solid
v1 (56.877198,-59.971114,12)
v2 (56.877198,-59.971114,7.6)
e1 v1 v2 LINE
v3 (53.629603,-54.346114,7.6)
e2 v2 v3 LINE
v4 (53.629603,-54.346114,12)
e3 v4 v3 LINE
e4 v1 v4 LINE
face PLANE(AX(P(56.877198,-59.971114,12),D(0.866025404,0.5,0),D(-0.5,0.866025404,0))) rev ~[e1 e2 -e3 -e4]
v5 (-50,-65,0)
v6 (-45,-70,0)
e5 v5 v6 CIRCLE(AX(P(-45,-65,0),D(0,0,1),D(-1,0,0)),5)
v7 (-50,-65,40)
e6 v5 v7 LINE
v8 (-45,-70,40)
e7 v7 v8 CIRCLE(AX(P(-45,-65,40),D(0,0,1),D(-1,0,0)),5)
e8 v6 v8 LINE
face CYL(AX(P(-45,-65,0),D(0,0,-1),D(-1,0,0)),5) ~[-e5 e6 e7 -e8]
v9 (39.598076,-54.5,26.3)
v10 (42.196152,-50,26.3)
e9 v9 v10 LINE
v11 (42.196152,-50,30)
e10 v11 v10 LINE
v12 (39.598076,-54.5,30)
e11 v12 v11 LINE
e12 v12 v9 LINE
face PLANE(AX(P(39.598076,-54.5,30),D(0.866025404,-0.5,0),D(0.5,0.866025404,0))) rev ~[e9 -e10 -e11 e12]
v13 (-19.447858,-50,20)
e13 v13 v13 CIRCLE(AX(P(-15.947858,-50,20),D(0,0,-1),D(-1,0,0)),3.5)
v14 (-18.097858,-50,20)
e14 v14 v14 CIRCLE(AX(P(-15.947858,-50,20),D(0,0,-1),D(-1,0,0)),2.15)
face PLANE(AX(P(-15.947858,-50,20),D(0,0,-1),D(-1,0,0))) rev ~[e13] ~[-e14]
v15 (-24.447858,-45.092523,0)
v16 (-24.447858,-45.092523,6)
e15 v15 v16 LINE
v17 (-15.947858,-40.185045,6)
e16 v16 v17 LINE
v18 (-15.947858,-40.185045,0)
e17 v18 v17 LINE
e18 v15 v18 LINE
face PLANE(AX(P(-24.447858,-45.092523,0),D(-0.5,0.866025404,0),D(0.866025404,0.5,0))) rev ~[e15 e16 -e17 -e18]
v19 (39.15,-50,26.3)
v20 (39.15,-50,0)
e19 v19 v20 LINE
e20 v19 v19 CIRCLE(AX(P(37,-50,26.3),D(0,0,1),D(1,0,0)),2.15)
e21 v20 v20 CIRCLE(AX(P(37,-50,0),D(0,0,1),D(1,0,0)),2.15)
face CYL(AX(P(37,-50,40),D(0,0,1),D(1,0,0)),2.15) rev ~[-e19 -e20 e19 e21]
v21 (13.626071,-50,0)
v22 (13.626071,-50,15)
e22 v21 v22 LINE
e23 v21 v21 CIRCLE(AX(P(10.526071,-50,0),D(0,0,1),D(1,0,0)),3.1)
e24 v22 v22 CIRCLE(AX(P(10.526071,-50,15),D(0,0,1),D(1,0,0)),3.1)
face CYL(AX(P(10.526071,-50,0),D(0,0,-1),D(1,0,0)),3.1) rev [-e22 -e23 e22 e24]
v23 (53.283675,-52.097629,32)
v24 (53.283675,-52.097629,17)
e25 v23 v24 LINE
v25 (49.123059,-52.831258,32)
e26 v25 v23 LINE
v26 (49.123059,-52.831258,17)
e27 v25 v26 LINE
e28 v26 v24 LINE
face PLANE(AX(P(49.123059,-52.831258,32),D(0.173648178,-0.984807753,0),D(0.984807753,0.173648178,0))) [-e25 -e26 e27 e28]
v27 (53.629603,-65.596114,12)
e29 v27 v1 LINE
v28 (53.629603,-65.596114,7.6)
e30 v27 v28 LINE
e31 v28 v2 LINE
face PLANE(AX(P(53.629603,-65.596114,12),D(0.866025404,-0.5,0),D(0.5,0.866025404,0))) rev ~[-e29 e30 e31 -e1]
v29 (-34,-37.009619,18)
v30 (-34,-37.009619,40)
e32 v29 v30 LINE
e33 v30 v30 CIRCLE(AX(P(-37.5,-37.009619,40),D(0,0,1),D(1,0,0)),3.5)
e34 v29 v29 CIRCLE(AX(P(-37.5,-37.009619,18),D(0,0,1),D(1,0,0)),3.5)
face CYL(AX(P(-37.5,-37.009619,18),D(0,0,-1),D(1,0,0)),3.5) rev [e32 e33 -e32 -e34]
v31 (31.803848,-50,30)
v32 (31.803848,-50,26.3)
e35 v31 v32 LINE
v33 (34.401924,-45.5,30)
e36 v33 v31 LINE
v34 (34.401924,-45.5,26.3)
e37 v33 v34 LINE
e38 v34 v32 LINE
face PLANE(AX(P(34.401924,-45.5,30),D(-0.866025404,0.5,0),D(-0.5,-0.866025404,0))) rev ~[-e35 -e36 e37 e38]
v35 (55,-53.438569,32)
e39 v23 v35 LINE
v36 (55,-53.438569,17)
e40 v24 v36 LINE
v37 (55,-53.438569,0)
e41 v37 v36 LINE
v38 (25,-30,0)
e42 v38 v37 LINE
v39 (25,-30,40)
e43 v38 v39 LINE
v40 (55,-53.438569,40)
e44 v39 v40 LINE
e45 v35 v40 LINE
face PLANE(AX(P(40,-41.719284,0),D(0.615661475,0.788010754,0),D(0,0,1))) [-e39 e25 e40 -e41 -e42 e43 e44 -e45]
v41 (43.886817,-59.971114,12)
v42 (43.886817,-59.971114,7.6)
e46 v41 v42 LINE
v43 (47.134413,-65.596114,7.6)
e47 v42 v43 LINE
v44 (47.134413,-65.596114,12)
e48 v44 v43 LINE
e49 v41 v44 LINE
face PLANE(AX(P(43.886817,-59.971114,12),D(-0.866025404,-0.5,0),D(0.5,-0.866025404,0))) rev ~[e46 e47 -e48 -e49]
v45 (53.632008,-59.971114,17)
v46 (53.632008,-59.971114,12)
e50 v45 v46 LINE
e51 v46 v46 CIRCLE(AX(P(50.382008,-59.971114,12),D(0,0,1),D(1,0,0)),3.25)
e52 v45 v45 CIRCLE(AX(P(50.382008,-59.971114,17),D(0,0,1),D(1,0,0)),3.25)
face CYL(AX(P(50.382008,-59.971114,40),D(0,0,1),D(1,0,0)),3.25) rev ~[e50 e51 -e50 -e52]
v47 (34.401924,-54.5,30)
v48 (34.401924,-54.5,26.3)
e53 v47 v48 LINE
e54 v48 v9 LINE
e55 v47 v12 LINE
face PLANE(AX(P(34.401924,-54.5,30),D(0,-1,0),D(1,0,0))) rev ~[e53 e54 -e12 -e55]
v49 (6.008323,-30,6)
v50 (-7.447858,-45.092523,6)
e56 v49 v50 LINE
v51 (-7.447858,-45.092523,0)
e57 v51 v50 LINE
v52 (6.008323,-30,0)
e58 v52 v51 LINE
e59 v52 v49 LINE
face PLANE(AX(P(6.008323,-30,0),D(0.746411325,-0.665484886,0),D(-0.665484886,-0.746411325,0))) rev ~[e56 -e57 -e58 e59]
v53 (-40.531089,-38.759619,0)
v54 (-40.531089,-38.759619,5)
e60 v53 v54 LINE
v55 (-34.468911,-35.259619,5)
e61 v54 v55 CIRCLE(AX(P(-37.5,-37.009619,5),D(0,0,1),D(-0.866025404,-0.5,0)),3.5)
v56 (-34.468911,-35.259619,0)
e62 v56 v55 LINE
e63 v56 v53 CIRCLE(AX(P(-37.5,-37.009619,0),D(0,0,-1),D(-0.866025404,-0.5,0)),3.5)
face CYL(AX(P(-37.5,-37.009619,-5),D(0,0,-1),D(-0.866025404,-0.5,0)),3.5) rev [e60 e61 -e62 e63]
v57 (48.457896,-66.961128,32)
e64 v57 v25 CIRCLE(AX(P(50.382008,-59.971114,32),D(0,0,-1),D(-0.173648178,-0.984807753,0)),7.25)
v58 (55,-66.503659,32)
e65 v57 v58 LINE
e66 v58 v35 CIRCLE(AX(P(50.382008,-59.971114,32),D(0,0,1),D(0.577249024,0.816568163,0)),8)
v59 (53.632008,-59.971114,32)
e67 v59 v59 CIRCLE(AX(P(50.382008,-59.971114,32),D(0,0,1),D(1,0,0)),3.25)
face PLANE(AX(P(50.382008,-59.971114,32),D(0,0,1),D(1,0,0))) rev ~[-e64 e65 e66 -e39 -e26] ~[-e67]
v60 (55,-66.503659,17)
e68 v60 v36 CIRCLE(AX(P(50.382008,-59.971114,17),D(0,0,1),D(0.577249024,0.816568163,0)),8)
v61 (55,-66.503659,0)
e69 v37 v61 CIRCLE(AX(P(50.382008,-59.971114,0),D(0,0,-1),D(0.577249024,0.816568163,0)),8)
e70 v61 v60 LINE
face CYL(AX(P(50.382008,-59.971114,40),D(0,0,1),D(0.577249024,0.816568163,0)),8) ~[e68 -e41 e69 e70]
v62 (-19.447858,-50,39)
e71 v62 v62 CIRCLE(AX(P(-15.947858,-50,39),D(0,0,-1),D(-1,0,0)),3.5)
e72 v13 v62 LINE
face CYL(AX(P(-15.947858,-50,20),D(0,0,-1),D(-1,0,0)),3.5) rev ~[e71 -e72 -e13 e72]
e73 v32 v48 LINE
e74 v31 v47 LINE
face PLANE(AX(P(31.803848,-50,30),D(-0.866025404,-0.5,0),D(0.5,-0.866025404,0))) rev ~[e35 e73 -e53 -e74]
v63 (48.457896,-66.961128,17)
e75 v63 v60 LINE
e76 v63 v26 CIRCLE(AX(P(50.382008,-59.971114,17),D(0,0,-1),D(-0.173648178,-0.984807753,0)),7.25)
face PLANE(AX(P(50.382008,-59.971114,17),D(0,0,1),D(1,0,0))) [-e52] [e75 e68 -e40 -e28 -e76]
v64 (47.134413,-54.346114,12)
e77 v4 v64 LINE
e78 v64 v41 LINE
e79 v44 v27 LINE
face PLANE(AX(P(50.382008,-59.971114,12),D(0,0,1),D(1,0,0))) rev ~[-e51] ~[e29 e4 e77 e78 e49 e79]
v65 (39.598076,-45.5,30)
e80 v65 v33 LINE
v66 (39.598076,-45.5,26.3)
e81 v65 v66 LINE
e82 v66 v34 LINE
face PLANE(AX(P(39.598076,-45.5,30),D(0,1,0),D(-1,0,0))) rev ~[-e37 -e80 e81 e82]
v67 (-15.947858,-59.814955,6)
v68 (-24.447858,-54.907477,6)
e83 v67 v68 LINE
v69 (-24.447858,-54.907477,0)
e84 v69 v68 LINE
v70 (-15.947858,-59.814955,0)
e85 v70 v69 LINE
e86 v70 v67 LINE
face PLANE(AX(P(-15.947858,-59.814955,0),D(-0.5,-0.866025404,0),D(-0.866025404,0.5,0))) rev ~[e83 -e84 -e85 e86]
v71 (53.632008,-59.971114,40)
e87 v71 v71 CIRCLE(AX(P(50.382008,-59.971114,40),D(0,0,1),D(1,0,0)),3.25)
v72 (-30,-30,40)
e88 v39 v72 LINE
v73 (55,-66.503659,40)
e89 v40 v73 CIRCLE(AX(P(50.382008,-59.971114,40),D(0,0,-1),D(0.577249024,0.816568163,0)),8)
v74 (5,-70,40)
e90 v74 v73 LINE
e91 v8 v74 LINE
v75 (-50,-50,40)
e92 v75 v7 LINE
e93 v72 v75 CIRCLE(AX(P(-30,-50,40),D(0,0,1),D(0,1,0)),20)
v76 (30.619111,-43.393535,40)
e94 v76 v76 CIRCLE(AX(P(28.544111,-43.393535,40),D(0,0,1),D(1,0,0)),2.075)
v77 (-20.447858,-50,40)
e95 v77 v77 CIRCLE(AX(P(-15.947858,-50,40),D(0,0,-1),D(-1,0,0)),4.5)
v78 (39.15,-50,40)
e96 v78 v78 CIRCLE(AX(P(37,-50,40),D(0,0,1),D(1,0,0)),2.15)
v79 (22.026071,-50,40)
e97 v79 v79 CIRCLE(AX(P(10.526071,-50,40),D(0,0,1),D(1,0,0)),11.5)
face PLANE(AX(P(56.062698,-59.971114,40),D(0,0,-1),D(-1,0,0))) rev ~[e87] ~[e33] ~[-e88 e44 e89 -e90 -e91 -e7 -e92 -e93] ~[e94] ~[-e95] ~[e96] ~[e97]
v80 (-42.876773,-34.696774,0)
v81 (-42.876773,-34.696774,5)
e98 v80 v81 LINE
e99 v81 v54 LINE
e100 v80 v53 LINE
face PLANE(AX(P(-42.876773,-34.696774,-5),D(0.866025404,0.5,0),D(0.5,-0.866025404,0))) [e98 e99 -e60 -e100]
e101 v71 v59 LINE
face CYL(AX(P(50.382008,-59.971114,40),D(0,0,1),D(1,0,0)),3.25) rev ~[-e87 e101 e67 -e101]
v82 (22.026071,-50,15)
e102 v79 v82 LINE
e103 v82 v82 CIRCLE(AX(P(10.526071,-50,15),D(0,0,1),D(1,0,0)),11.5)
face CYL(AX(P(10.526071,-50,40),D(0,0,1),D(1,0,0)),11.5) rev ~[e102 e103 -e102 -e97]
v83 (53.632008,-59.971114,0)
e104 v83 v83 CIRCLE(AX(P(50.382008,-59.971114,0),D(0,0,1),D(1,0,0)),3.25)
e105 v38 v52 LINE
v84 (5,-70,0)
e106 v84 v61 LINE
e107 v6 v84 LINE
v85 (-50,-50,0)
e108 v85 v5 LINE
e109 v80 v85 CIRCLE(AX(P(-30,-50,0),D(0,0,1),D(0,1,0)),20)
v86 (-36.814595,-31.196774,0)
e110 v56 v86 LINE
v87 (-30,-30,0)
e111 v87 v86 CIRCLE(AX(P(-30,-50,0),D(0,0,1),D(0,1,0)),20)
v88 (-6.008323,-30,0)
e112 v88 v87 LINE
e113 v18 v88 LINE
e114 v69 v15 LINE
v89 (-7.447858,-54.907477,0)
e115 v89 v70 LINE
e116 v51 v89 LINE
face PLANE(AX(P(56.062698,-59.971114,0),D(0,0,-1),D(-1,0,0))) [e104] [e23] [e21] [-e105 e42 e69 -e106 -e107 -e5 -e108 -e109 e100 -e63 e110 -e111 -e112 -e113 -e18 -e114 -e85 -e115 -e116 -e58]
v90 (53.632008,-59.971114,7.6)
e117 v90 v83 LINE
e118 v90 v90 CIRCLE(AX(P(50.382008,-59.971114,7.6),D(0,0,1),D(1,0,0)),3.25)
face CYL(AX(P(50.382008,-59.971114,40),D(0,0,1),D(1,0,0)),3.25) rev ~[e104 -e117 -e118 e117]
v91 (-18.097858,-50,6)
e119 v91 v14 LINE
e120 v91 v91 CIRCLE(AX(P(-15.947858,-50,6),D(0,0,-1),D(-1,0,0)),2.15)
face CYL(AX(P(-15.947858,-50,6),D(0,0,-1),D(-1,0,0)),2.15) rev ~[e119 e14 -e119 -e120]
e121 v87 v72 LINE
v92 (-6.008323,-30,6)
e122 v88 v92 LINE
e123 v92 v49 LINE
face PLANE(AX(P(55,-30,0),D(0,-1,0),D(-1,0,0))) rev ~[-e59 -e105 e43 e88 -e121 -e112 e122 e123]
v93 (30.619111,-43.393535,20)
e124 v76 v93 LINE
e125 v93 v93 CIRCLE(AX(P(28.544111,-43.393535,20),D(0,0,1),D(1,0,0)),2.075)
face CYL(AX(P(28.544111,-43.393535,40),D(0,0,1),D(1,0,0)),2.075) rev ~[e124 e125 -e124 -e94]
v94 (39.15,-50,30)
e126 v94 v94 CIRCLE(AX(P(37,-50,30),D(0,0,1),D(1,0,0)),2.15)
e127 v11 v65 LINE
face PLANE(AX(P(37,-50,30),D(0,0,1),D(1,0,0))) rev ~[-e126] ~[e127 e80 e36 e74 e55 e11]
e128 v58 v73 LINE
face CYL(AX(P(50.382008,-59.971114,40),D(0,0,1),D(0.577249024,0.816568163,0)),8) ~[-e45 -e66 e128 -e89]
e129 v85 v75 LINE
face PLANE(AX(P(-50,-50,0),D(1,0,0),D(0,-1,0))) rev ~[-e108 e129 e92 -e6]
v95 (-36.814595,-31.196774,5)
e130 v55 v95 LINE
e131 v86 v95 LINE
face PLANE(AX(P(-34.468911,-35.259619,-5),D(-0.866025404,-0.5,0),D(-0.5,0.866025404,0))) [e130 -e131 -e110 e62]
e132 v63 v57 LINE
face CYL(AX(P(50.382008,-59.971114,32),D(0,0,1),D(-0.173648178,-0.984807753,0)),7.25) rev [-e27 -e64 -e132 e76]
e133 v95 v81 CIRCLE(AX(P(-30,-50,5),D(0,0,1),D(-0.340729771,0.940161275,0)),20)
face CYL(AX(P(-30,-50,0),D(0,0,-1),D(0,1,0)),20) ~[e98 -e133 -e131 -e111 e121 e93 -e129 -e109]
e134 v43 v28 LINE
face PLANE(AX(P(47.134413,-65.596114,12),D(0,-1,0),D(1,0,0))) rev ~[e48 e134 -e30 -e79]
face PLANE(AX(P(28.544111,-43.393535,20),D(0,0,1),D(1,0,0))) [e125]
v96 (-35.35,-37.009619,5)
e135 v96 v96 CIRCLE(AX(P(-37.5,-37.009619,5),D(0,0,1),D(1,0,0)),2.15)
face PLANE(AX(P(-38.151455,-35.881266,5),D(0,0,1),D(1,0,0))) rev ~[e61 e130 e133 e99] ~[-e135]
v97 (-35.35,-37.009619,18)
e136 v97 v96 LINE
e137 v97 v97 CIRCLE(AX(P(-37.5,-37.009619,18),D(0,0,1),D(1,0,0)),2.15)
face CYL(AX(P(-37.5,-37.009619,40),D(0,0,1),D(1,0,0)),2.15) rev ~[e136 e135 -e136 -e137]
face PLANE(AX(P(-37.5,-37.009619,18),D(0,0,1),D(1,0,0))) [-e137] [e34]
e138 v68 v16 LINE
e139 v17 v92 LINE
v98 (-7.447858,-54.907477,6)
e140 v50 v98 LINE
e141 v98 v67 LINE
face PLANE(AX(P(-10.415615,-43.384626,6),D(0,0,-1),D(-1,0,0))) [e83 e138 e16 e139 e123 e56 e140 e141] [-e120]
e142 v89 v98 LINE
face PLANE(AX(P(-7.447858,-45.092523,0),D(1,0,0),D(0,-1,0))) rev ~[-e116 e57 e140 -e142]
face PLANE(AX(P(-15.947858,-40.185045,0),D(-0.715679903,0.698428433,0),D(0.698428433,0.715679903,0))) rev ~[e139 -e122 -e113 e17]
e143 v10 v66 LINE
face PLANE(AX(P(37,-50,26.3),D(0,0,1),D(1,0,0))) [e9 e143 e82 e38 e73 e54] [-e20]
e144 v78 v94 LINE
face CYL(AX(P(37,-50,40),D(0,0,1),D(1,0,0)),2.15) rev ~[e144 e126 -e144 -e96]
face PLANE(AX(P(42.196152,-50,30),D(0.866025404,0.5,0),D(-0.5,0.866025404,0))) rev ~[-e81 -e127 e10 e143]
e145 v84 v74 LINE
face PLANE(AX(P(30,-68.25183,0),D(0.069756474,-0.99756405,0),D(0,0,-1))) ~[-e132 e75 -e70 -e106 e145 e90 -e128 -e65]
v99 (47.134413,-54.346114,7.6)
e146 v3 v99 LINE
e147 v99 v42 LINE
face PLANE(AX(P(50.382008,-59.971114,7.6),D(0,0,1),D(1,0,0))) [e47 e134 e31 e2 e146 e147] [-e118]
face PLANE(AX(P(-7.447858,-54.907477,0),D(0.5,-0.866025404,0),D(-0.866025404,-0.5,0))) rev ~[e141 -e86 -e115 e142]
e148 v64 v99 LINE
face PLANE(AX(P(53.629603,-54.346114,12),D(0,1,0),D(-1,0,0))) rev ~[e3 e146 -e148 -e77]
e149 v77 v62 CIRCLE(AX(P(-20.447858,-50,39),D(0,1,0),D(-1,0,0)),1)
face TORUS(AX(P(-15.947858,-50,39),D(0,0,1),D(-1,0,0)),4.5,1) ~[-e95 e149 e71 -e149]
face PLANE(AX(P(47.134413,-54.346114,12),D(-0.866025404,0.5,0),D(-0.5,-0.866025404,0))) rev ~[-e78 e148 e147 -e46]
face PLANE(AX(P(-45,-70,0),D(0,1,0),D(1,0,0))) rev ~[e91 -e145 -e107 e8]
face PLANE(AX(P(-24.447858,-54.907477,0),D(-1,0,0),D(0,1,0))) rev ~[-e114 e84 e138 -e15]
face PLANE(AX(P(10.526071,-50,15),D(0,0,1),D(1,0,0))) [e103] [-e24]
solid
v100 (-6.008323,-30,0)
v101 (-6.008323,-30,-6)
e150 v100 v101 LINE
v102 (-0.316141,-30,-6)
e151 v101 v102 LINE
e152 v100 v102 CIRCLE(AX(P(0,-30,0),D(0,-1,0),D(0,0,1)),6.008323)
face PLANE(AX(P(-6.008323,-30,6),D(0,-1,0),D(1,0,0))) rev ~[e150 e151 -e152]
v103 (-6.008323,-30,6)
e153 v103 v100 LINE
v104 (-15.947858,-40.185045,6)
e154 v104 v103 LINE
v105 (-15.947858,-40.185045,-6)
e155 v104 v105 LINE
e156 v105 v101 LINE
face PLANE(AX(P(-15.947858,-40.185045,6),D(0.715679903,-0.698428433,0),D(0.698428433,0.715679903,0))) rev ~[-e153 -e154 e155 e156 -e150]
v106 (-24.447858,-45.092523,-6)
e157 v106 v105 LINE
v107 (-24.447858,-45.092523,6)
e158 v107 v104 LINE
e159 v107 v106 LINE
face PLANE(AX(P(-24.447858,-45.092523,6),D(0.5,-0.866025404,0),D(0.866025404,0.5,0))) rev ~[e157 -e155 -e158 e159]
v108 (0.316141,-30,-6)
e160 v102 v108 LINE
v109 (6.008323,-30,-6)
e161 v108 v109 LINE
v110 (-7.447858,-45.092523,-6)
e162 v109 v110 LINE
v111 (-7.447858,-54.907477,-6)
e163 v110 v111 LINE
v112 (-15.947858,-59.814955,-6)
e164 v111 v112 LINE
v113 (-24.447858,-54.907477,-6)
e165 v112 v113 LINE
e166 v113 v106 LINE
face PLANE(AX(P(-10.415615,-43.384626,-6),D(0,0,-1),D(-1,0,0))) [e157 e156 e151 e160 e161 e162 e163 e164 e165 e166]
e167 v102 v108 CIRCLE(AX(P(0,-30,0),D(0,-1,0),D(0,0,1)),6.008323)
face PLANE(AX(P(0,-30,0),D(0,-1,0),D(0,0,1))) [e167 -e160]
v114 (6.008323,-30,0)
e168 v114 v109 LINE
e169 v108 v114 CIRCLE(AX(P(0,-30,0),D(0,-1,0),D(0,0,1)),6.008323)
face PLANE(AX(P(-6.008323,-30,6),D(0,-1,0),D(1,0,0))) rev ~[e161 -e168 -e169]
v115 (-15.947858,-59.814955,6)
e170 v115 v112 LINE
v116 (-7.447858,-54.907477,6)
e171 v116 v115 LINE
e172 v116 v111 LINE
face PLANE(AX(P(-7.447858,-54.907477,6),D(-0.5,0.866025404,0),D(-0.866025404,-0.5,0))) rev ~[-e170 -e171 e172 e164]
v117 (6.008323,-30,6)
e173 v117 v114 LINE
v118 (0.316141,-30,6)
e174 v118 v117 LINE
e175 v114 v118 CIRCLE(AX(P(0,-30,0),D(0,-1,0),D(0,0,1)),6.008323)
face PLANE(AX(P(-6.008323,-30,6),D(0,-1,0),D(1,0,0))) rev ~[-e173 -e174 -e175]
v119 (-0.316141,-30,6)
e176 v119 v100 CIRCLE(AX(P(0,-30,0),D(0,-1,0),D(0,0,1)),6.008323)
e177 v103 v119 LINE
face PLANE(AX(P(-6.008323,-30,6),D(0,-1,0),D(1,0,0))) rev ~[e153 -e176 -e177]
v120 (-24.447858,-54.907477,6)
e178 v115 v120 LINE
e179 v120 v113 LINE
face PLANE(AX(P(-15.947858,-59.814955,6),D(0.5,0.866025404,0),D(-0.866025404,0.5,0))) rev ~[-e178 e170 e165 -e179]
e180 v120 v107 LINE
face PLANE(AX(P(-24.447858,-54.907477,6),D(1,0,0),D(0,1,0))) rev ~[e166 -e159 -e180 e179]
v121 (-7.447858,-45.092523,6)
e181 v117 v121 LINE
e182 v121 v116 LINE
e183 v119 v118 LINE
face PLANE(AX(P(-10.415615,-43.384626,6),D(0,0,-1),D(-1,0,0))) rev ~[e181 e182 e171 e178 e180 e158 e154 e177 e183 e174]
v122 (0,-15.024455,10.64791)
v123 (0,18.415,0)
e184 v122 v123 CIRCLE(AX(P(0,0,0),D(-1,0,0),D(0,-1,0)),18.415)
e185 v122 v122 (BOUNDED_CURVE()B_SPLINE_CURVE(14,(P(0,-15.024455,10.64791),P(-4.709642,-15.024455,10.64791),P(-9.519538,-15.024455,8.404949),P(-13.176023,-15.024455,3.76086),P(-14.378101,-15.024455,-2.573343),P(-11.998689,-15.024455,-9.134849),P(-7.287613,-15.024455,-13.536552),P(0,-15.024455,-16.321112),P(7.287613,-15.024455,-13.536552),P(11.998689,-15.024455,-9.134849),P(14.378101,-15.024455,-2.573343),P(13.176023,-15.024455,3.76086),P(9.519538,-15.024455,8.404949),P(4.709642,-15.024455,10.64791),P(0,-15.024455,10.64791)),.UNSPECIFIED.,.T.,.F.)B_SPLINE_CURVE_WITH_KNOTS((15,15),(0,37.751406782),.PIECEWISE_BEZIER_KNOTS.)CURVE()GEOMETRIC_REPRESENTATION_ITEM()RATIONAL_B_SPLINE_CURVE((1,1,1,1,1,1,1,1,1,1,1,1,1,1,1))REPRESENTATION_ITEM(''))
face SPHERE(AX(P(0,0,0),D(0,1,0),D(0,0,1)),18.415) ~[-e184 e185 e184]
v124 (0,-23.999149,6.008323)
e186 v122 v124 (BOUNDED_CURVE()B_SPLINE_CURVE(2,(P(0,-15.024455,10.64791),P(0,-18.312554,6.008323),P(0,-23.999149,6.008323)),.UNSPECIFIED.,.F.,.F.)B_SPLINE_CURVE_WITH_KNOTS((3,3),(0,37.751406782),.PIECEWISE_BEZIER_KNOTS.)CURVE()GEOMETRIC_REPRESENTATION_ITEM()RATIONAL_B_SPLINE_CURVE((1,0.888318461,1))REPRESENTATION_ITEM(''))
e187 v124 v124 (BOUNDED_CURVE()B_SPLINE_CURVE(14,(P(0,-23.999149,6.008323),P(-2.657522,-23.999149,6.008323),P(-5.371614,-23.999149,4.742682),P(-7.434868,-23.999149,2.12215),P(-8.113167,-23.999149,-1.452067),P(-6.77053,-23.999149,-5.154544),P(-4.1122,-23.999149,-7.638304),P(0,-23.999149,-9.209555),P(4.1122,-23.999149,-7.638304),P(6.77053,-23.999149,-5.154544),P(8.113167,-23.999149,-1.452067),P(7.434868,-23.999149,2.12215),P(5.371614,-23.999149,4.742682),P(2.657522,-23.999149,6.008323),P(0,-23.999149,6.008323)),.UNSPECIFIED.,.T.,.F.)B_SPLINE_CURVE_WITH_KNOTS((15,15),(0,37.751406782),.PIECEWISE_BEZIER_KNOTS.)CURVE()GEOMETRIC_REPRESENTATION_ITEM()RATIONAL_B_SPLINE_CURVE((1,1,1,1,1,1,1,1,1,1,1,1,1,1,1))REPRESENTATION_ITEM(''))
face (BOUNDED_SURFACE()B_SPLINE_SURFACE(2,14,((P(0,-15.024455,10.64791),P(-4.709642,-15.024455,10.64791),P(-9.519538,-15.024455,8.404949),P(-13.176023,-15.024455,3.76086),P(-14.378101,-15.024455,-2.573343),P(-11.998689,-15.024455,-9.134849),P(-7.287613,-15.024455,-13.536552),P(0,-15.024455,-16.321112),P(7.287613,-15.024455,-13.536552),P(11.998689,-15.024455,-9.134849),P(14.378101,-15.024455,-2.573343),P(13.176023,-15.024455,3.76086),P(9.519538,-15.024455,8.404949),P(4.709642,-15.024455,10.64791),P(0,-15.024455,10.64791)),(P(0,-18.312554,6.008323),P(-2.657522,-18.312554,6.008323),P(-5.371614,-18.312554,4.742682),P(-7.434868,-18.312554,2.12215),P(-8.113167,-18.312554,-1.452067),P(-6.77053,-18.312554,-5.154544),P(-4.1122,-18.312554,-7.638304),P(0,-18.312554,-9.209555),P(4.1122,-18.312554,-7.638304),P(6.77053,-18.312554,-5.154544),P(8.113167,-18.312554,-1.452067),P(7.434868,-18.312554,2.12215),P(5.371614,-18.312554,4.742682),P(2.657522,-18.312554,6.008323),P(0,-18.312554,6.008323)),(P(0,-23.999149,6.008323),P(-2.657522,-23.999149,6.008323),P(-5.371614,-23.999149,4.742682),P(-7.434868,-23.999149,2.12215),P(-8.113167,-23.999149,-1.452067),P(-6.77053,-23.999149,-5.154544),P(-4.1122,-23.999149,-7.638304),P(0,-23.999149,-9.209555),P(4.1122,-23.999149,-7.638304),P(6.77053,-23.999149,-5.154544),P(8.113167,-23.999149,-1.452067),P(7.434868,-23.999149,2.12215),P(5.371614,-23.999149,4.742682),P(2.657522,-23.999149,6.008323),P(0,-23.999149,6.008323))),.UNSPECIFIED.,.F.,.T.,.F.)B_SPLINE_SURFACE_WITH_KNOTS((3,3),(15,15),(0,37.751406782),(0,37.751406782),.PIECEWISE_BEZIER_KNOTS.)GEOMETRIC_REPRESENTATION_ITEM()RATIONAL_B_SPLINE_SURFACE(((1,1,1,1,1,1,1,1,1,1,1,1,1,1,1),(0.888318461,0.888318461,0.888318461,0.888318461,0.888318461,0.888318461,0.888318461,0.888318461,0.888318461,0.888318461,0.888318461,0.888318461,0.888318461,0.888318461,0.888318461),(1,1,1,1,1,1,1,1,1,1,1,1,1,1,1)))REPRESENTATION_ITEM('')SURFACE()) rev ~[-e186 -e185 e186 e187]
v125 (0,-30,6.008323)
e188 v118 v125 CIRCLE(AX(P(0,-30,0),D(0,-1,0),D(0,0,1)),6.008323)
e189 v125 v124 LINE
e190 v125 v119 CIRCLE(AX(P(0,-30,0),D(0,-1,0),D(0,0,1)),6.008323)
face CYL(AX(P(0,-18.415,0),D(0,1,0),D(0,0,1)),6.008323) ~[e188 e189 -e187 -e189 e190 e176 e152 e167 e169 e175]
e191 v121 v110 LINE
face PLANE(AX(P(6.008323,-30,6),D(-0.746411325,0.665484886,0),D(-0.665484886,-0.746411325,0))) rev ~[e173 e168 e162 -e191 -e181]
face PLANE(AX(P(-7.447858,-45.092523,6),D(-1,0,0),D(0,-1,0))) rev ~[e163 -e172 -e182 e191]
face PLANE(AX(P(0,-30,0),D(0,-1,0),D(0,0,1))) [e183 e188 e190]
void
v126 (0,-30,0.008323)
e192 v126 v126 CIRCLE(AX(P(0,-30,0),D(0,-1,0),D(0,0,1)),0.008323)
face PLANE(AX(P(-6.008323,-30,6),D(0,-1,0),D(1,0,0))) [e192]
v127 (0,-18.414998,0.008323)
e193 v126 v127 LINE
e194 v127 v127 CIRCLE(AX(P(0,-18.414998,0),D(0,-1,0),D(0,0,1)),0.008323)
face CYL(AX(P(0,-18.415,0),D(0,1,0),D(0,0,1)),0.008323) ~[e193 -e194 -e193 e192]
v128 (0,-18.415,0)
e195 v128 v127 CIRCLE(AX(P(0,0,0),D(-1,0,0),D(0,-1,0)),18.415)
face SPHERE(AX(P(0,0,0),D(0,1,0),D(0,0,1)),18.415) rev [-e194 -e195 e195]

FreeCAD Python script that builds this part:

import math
import FreeCAD as App
import Part
import Sketcher
Q = App.Units.Quantity


def edges_at(feature, points):
    """Names of the edges that pass closest to the given points."""
    edges = feature.Shape.Edges
    near = lambda p: min(range(len(edges)), key=lambda i: edges[i].distToShape(Part.Vertex(*p))[0])
    return sorted({f"Edge{near(p) + 1}" for p in points})


def add_polygon(sketch, points):
    """Adds a closed chain of lines whose ends are joined by coincident constraints."""
    first, n = sketch.GeometryCount, len(points)
    for a, b in zip(points, points[1:] + points[:1]):
        sketch.addGeometry(Part.LineSegment(App.Vector(*a, 0), App.Vector(*b, 0)), False)
    for i in range(n):
        sketch.addConstraint(Sketcher.Constraint("Coincident", first + i, 2, first + (i + 1) % n, 1))

doc = App.newDocument("Part")
params = doc.addObject("Spreadsheet::Sheet", "Params")
for row, (alias, value) in enumerate([
    ("sketch1_radius", "20 mm"),
    ("sketch1_radius2", "5 mm"),
    ("sketch1_width", "85 mm"),
    ("sketch1_height", "15 mm"),
    ("pad1_length", "40 mm"),
    ("pocket1_length", "6 mm"),
    ("sketch3_diameter", "4.3 mm"),
    ("pocket2_length", "14 mm"),
    ("sketch4_diameter", "7 mm"),
    ("pocket3_length", "24 mm"),
    ("fillet_radius", "1 mm"),
    ("sketch5_diameter", "4.3 mm"),
    ("pocket4_length", "57 mm"),
    ("pocket5_length", "3.7 mm"),
    ("chamfer_size", "30 mm"),
    ("chamfer_size2", "23.438569 mm"),
    ("chamfer2_size", "50 mm"),
    ("chamfer2_size2", "3.496341 mm"),
    ("sketch7_radius", "8 mm"),
    ("sketch7_diameter", "6.5 mm"),
    ("pad2_length", "40 mm"),
    ("sketch8_diameter", "6.5 mm"),
    ("pocket6_length", "40 mm"),
    ("sketch9_radius", "7.25 mm"),
    ("pocket7_length", "15 mm"),
    ("pocket8_length", "4.4 mm"),
    ("sketch11_radius", "20 mm"),
    ("sketch11_radius2", "3.5 mm"),
    ("pocket9_length", "5 mm"),
    ("pocket9_length2", "5 mm"),
    ("sketch12_diameter", "7 mm"),
    ("pocket10_length", "22 mm"),
    ("sketch13_diameter", "4.3 mm"),
    ("pocket11_length", "42 mm"),
    ("sketch14_diameter", "6.2 mm"),
    ("pocket12_length", "15 mm"),
    ("sketch15_diameter", "23 mm"),
    ("pocket13_length", "25 mm"),
    ("sketch16_diameter", "4.15 mm"),
    ("pocket14_length", "20 mm"),
    ("sketch17_width", "6 mm"),
    ("revolution_angle", "360 deg"),
    ("fillet2_radius", "11 mm"),
    ("pad3_length", "6 mm"),
    ("pad3_length2", "6 mm"),
], start=1):
    params.set(f"A{row}", alias)
    params.set(f"B{row}", "=" + value)
    params.setAlias(f"B{row}", alias)

body = doc.addObject("PartDesign::Body", "Body")

# Sketch on XY plane
sketch1 = doc.addObject("Sketcher::SketchObject", "Sketch")
body.addObject(sketch1)
sketch1.AttachmentSupport = (doc.XY_Plane, [""])
sketch1.MapMode = "FlatFace"
sketch1.addGeometry(Part.LineSegment(App.Vector(55, -30, 0), App.Vector(-30, -30, 0)), False)
sketch1.addGeometry(Part.ArcOfCircle(Part.Circle(App.Vector(-30, -50, 0), App.Vector(0, 0, 1), 20), math.radians(90), math.radians(180)), False)
sketch1.addGeometry(Part.LineSegment(App.Vector(-50, -50, 0), App.Vector(-50, -65, 0)), False)
sketch1.addGeometry(Part.ArcOfCircle(Part.Circle(App.Vector(-45, -65, 0), App.Vector(0, 0, 1), 5), math.radians(180), math.radians(270)), False)
sketch1.addGeometry(Part.LineSegment(App.Vector(-45, -70, 0), App.Vector(55, -70, 0)), False)
sketch1.addGeometry(Part.LineSegment(App.Vector(55, -70, 0), App.Vector(55, -30, 0)), False)
sketch1.addConstraint(Sketcher.Constraint("Tangent", 0, 2, 1, 1))
sketch1.addConstraint(Sketcher.Constraint("Tangent", 1, 2, 2, 1))
sketch1.addConstraint(Sketcher.Constraint("Tangent", 2, 2, 3, 1))
sketch1.addConstraint(Sketcher.Constraint("Tangent", 3, 2, 4, 1))
sketch1.addConstraint(Sketcher.Constraint("Coincident", 4, 2, 5, 1))
sketch1.addConstraint(Sketcher.Constraint("Coincident", 5, 2, 0, 1))
sketch1.addConstraint(Sketcher.Constraint("Horizontal", 0))
sketch1.addConstraint(Sketcher.Constraint("Vertical", 2))
sketch1.addConstraint(Sketcher.Constraint("Horizontal", 4))
sketch1.addConstraint(Sketcher.Constraint("Vertical", 5))
sketch1.addConstraint(Sketcher.Constraint("Radius", 1, 20.0))
sketch1.addConstraint(Sketcher.Constraint("Radius", 3, 5.0))
sketch1.addConstraint(Sketcher.Constraint("DistanceX", 0, 2, 0, 1, 85.0))
sketch1.addConstraint(Sketcher.Constraint("DistanceY", 2, 2, 2, 1, 15.0))
sketch1.addConstraint(Sketcher.Constraint("DistanceX", 1, 3, -1, 1, 30.0))
sketch1.addConstraint(Sketcher.Constraint("DistanceY", 1, 3, -1, 1, 50.0))
sketch1.setExpression("Constraints[10]", "Params.sketch1_radius")
sketch1.setExpression("Constraints[11]", "Params.sketch1_radius2")
sketch1.setExpression("Constraints[12]", "Params.sketch1_width")
sketch1.setExpression("Constraints[13]", "Params.sketch1_height")
pad1 = doc.addObject("PartDesign::Pad", "Pad")
body.addObject(pad1)
pad1.Profile = sketch1
pad1.setExpression("Length", "Params.pad1_length")

# Sketch on XY plane
sketch2 = doc.addObject("Sketcher::SketchObject", "Sketch001")
body.addObject(sketch2)
sketch2.AttachmentSupport = (doc.XY_Plane, [""])
sketch2.MapMode = "FlatFace"
add_polygon(sketch2, [(-7, -45), (-7, -55), (-16, -60), (-24, -55), (-24, -45), (-16, -40), (-6, -30), (6, -30)])  # lines 0-7
sketch2.addConstraint(Sketcher.Constraint("Vertical", 0))
sketch2.addConstraint(Sketcher.Constraint("Vertical", 3))
sketch2.addConstraint(Sketcher.Constraint("Horizontal", 6))
sketch2.addConstraint(Sketcher.Constraint("Parallel", 1, 4))
sketch2.addConstraint(Sketcher.Constraint("Horizontal", 0, 2, 2, 2))
sketch2.addConstraint(Sketcher.Constraint("Horizontal", 3, 2, 7, 2))
sketch2.addConstraint(Sketcher.Constraint("Vertical", 1, 2, 4, 2))
sketch2.addConstraint(Sketcher.Constraint("Equal", 1, 2))
sketch2.addConstraint(Sketcher.Constraint("Angle", 1, Q("-150 deg")))
sketch2.addConstraint(Sketcher.Constraint("DistanceY", 5, 2, -1, 1, 30.0))
sketch2.addConstraint(Sketcher.Constraint("DistanceX", 2, 2, 0, 2, 17.0))
sketch2.addConstraint(Sketcher.Constraint("DistanceX", 6, 1, 6, 2, 12.016646))
sketch2.addConstraint(Sketcher.Constraint("DistanceY", 0, 2, 0, 1, 9.814955))
sketch2.addConstraint(Sketcher.Constraint("DistanceX", 4, 2, 6, 2, 21.956181))
sketch2.addConstraint(Sketcher.Constraint("Distance", 5, 14.231286))
sketch2.addConstraint(Sketcher.Constraint("DistanceX", 0, 2, -1, 1, 7.447858))
pocket1 = doc.addObject("PartDesign::Pocket", "Pocket")
body.addObject(pocket1)
pocket1.Profile = sketch2
pocket1.setExpression("Length", "Params.pocket1_length")
pocket1.Reversed = True

# Sketch on XY plane
sketch3 = doc.addObject("Sketcher::SketchObject", "Sketch002")
body.addObject(sketch3)
sketch3.AttachmentSupport = (doc.XY_Plane, [""])
sketch3.MapMode = "FlatFace"
sketch3.AttachmentOffset = App.Placement(App.Vector(0, 0, 6), App.Rotation())
sketch3.addGeometry(Part.Circle(App.Vector(-15.9, -50, 0), App.Vector(0, 0, 1), 2.1), False)
sketch3.addConstraint(Sketcher.Constraint("Diameter", 0, 4.3))
sketch3.addConstraint(Sketcher.Constraint("DistanceY", 0, 3, -1, 1, 50.0))
sketch3.addConstraint(Sketcher.Constraint("DistanceX", 0, 3, -1, 1, 15.947858))
sketch3.setExpression("Constraints[0]", "Params.sketch3_diameter")
pocket2 = doc.addObject("PartDesign::Pocket", "Pocket001")
body.addObject(pocket2)
pocket2.Profile = sketch3
pocket2.setExpression("Length", "Params.pocket2_length")
pocket2.Reversed = True

# Sketch on XY plane
sketch4 = doc.addObject("Sketcher::SketchObject", "Sketch003")
body.addObject(sketch4)
sketch4.AttachmentSupport = (doc.XY_Plane, [""])
sketch4.MapMode = "FlatFace"
sketch4.AttachmentOffset = App.Placement(App.Vector(0, 0, 20), App.Rotation())
sketch4.addGeometry(Part.Circle(App.Vector(-15.9, -50, 0), App.Vector(0, 0, 1), 3.5), False)
sketch4.addConstraint(Sketcher.Constraint("Diameter", 0, 7.0))
sketch4.addConstraint(Sketcher.Constraint("DistanceY", 0, 3, -1, 1, 50.0))
sketch4.addConstraint(Sketcher.Constraint("DistanceX", 0, 3, -1, 1, 15.947858))
sketch4.setExpression("Constraints[0]", "Params.sketch4_diameter")
pocket3 = doc.addObject("PartDesign::Pocket", "Pocket002")
body.addObject(pocket3)
pocket3.Profile = sketch4
pocket3.setExpression("Length", "Params.pocket3_length")
pocket3.Reversed = True
doc.recompute()

fillet = doc.addObject("PartDesign::Fillet", "Fillet")
body.addObject(fillet)
fillet.Base = (pocket3, edges_at(pocket3, [(-12.448, -50, 40)]))
fillet.setExpression("Radius", "Params.fillet_radius")

# Sketch on XY plane
sketch5 = doc.addObject("Sketcher::SketchObject", "Sketch004")
body.addObject(sketch5)
sketch5.AttachmentSupport = (doc.XY_Plane, [""])
sketch5.MapMode = "FlatFace"
sketch5.AttachmentOffset = App.Placement(App.Vector(0, 0, 40), App.Rotation())
sketch5.addGeometry(Part.Circle(App.Vector(37, -50, 0), App.Vector(0, 0, 1), 2.1), False)
sketch5.addConstraint(Sketcher.Constraint("Diameter", 0, 4.3))
sketch5.addConstraint(Sketcher.Constraint("DistanceX", -1, 1, 0, 3, 37.0))
sketch5.addConstraint(Sketcher.Constraint("DistanceY", 0, 3, -1, 1, 50.0))
sketch5.setExpression("Constraints[0]", "Params.sketch5_diameter")
pocket4 = doc.addObject("PartDesign::Pocket", "Pocket003")
body.addObject(pocket4)
pocket4.Profile = sketch5
pocket4.setExpression("Length", "Params.pocket4_length")

# Sketch on XY plane
sketch6 = doc.addObject("Sketcher::SketchObject", "Sketch005")
body.addObject(sketch6)
sketch6.AttachmentSupport = (doc.XY_Plane, [""])
sketch6.MapMode = "FlatFace"
sketch6.AttachmentOffset = App.Placement(App.Vector(0, 0, 30), App.Rotation())
add_polygon(sketch6, [(42, -50), (40, -46), (34, -46), (32, -50), (34, -54), (40, -54)])  # lines 0-5
sketch6.addConstraint(Sketcher.Constraint("Horizontal", 1))
sketch6.addConstraint(Sketcher.Constraint("Horizontal", 4))
sketch6.addConstraint(Sketcher.Constraint("Parallel", 0, 3))
sketch6.addConstraint(Sketcher.Constraint("Parallel", 2, 5))
sketch6.addConstraint(Sketcher.Constraint("Horizontal", 2, 2, 5, 2))
sketch6.addConstraint(Sketcher.Constraint("Vertical", 1, 2, 3, 2))
sketch6.addConstraint(Sketcher.Constraint("Vertical", 0, 2, 4, 2))
sketch6.addConstraint(Sketcher.Constraint("Angle", 0, Q("120 deg")))
sketch6.addConstraint(Sketcher.Constraint("DistanceY", 2, 2, -1, 1, 50.0))
sketch6.addConstraint(Sketcher.Constraint("DistanceY", 3, 2, 1, 2, 9.0))
sketch6.addConstraint(Sketcher.Constraint("DistanceX", 1, 2, 1, 1, 5.196152))
sketch6.addConstraint(Sketcher.Constraint("DistanceX", -1, 1, 0, 2, 39.598076))
pocket5 = doc.addObject("PartDesign::Pocket", "Pocket004")
body.addObject(pocket5)
pocket5.Profile = sketch6
pocket5.setExpression("Length", "Params.pocket5_length")
doc.recompute()

chamfer = doc.addObject("PartDesign::Chamfer", "Chamfer")
body.addObject(chamfer)
chamfer.Base = (pocket5, edges_at(pocket5, [(55, -30, 20)]))
chamfer.ChamferType = "Two distances"
chamfer.setExpression("Size", "Params.chamfer_size")
chamfer.setExpression("Size2", "Params.chamfer_size2")
doc.recompute()

chamfer2 = doc.addObject("PartDesign::Chamfer", "Chamfer001")
body.addObject(chamfer2)
chamfer2.Base = (chamfer, edges_at(chamfer, [(55, -70, 20)]))
chamfer2.ChamferType = "Two distances"
chamfer2.setExpression("Size", "Params.chamfer2_size")
chamfer2.setExpression("Size2", "Params.chamfer2_size2")
chamfer2.FlipDirection = True

# Sketch on XY plane
sketch7 = doc.addObject("Sketcher::SketchObject", "Sketch006")
body.addObject(sketch7)
sketch7.AttachmentSupport = (doc.XY_Plane, [""])
sketch7.MapMode = "FlatFace"
sketch7.AttachmentOffset = App.Placement(App.Vector(0, 0, 40), App.Rotation())
sketch7.addGeometry(Part.Circle(App.Vector(50.4, -60, 0), App.Vector(0, 0, 1), 3.2), False)
sketch7.addGeometry(Part.ArcOfCircle(Part.Circle(App.Vector(50.4, -60, 0), App.Vector(0, 0, 1), 8), math.radians(-55), math.radians(55)), False)
sketch7.addGeometry(Part.LineSegment(App.Vector(55, -53.4, 0), App.Vector(55, -66.5, 0)), False)
sketch7.addConstraint(Sketcher.Constraint("Coincident", 1, 1, 2, 2))
sketch7.addConstraint(Sketcher.Constraint("Coincident", 2, 1, 1, 2))
sketch7.addConstraint(Sketcher.Constraint("Vertical", 2))
sketch7.addConstraint(Sketcher.Constraint("Coincident", 1, 3, 0, 3))
sketch7.addConstraint(Sketcher.Constraint("Radius", 1, 8.0))
sketch7.addConstraint(Sketcher.Constraint("Diameter", 0, 6.5))
sketch7.addConstraint(Sketcher.Constraint("DistanceX", -1, 1, 1, 1, 55.0))
sketch7.addConstraint(Sketcher.Constraint("DistanceY", 2, 2, 2, 1, 13.065091))
sketch7.addConstraint(Sketcher.Constraint("DistanceY", 1, 1, -1, 1, 66.503659))
sketch7.setExpression("Constraints[4]", "Params.sketch7_radius")
sketch7.setExpression("Constraints[5]", "Params.sketch7_diameter")
pad2 = doc.addObject("PartDesign::Pad", "Pad001")
body.addObject(pad2)
pad2.Profile = sketch7
pad2.setExpression("Length", "Params.pad2_length")
pad2.Reversed = True

# Sketch on XY plane
sketch8 = doc.addObject("Sketcher::SketchObject", "Sketch007")
body.addObject(sketch8)
sketch8.AttachmentSupport = (doc.XY_Plane, [""])
sketch8.MapMode = "FlatFace"
sketch8.AttachmentOffset = App.Placement(App.Vector(0, 0, 40), App.Rotation())
sketch8.addGeometry(Part.Circle(App.Vector(50.4, -60, 0), App.Vector(0, 0, 1), 3.2), False)
sketch8.addConstraint(Sketcher.Constraint("Diameter", 0, 6.5))
sketch8.addConstraint(Sketcher.Constraint("DistanceX", -1, 1, 0, 3, 50.382008))
sketch8.addConstraint(Sketcher.Constraint("DistanceY", 0, 3, -1, 1, 59.971114))
sketch8.setExpression("Constraints[0]", "Params.sketch8_diameter")
pocket6 = doc.addObject("PartDesign::Pocket", "Pocket005")
body.addObject(pocket6)
pocket6.Profile = sketch8
pocket6.setExpression("Length", "Params.pocket6_length")

# Sketch on XY plane
sketch9 = doc.addObject("Sketcher::SketchObject", "Sketch008")
body.addObject(sketch9)
sketch9.AttachmentSupport = (doc.XY_Plane, [""])
sketch9.MapMode = "FlatFace"
sketch9.AttachmentOffset = App.Placement(App.Vector(0, 0, 32), App.Rotation())
sketch9.addGeometry(Part.ArcOfCircle(Part.Circle(App.Vector(50, -60, 0), App.Vector(0, 0, 1), 7), math.radians(100), math.radians(260)), False)
sketch9.addGeometry(Part.LineSegment(App.Vector(49, -67, 0), App.Vector(68, -70, 0)), False)
sketch9.addGeometry(Part.LineSegment(App.Vector(68, -70, 0), App.Vector(68, -50, 0)), False)
sketch9.addGeometry(Part.LineSegment(App.Vector(68, -50, 0), App.Vector(49, -53, 0)), False)
sketch9.addConstraint(Sketcher.Constraint("Tangent", 0, 2, 1, 1))
sketch9.addConstraint(Sketcher.Constraint("Coincident", 1, 2, 2, 1))
sketch9.addConstraint(Sketcher.Constraint("Coincident", 2, 2, 3, 1))
sketch9.addConstraint(Sketcher.Constraint("Tangent", 3, 2, 0, 1))
sketch9.addConstraint(Sketcher.Constraint("Vertical", 2))
sketch9.addConstraint(Sketcher.Constraint("Vertical", 0, 2, 3, 2))
sketch9.addConstraint(Sketcher.Constraint("Angle", 1, Q("-10 deg")))
sketch9.addConstraint(Sketcher.Constraint("Radius", 0, 7.25))
sketch9.addConstraint(Sketcher.Constraint("DistanceY", 2, 1, 2, 2, 20.884432))
sketch9.addConstraint(Sketcher.Constraint("DistanceX", -1, 1, 0, 2, 49.123059))
sketch9.addConstraint(Sketcher.Constraint("DistanceY", 0, 2, -1, 1, 67.11097))
sketch9.setExpression("Constraints[7]", "Params.sketch9_radius")
pocket7 = doc.addObject("PartDesign::Pocket", "Pocket006")
body.addObject(pocket7)
pocket7.Profile = sketch9
pocket7.setExpression("Length", "Params.pocket7_length")

# Sketch on XY plane
sketch10 = doc.addObject("Sketcher::SketchObject", "Sketch009")
body.addObject(sketch10)
sketch10.AttachmentSupport = (doc.XY_Plane, [""])
sketch10.MapMode = "FlatFace"
sketch10.AttachmentOffset = App.Placement(App.Vector(0, 0, 12), App.Rotation())
add_polygon(sketch10, [(57, -60), (54, -54), (47, -54), (44, -60), (47, -66), (54, -66)])  # lines 0-5
sketch10.addConstraint(Sketcher.Constraint("Horizontal", 1))
sketch10.addConstraint(Sketcher.Constraint("Horizontal", 4))
sketch10.addConstraint(Sketcher.Constraint("Parallel", 0, 3))
sketch10.addConstraint(Sketcher.Constraint("Parallel", 2, 5))
sketch10.addConstraint(Sketcher.Constraint("Horizontal", 2, 2, 5, 2))
sketch10.addConstraint(Sketcher.Constraint("Vertical", 1, 2, 3, 2))
sketch10.addConstraint(Sketcher.Constraint("Vertical", 0, 2, 4, 2))
sketch10.addConstraint(Sketcher.Constraint("Angle", 0, Q("120 deg")))
sketch10.addConstraint(Sketcher.Constraint("DistanceY", 3, 2, 1, 2, 11.25))
sketch10.addConstraint(Sketcher.Constraint("DistanceX", 1, 2, 1, 1, 6.495191))
sketch10.addConstraint(Sketcher.Constraint("DistanceX", -1, 1, 5, 2, 56.877198))
sketch10.addConstraint(Sketcher.Constraint("DistanceY", 0, 2, -1, 1, 54.346114))
pocket8 = doc.addObject("PartDesign::Pocket", "Pocket007")
body.addObject(pocket8)
pocket8.Profile = sketch10
pocket8.setExpression("Length", "Params.pocket8_length")

# Sketch on XY plane
sketch11 = doc.addObject("Sketcher::SketchObject", "Sketch010")
body.addObject(sketch11)
sketch11.AttachmentSupport = (doc.XY_Plane, [""])
sketch11.MapMode = "FlatFace"
sketch11.addGeometry(Part.LineSegment(App.Vector(-34.5, -35.3, 0), App.Vector(-36.8, -31.2, 0)), False)
sketch11.addGeometry(Part.ArcOfCircle(Part.Circle(App.Vector(-30, -50, 0), App.Vector(0, 0, 1), 20), math.radians(110), math.radians(130)), False)
sketch11.addGeometry(Part.LineSegment(App.Vector(-42.9, -34.7, 0), App.Vector(-40.5, -38.8, 0)), False)
sketch11.addGeometry(Part.ArcOfCircle(Part.Circle(App.Vector(-37.5, -37, 0), App.Vector(0, 0, 1), 3.5), math.radians(-150), math.radians(30)), False)
sketch11.addConstraint(Sketcher.Constraint("Coincident", 0, 2, 1, 1))
sketch11.addConstraint(Sketcher.Constraint("Coincident", 1, 2, 2, 1))
sketch11.addConstraint(Sketcher.Constraint("Tangent", 2, 2, 3, 1))
sketch11.addConstraint(Sketcher.Constraint("Tangent", 3, 2, 0, 1))
sketch11.addConstraint(Sketcher.Constraint("Parallel", 0, 2))
sketch11.addConstraint(Sketcher.Constraint("Equal", 0, 2))
sketch11.addConstraint(Sketcher.Constraint("Radius", 1, 20.0))
sketch11.addConstraint(Sketcher.Constraint("Radius", 3, 3.5))
sketch11.addConstraint(Sketcher.Constraint("Angle", 0, Q("120 deg")))
sketch11.addConstraint(Sketcher.Constraint("DistanceX", 1, 3, -1, 1, 30.0))
sketch11.addConstraint(Sketcher.Constraint("DistanceY", 1, 3, -1, 1, 50.0))
sketch11.addConstraint(Sketcher.Constraint("DistanceX", 3, 3, -1, 1, 37.5))
sketch11.setExpression("Constraints[6]", "Params.sketch11_radius")
sketch11.setExpression("Constraints[7]", "Params.sketch11_radius2")
pocket9 = doc.addObject("PartDesign::Pocket", "Pocket008")
body.addObject(pocket9)
pocket9.Profile = sketch11
pocket9.Type = "TwoLengths"
pocket9.setExpression("Length", "Params.pocket9_length")
pocket9.setExpression("Length2", "Params.pocket9_length2")
pocket9.Reversed = True

# Sketch on XY plane
sketch12 = doc.addObject("Sketcher::SketchObject", "Sketch011")
body.addObject(sketch12)
sketch12.AttachmentSupport = (doc.XY_Plane, [""])
sketch12.MapMode = "FlatFace"
sketch12.AttachmentOffset = App.Placement(App.Vector(0, 0, 18), App.Rotation())
sketch12.addGeometry(Part.Circle(App.Vector(-37.5, -37, 0), App.Vector(0, 0, 1), 3.5), False)
sketch12.addConstraint(Sketcher.Constraint("Diameter", 0, 7.0))
sketch12.addConstraint(Sketcher.Constraint("DistanceX", 0, 3, -1, 1, 37.5))
sketch12.addConstraint(Sketcher.Constraint("DistanceY", 0, 3, -1, 1, 37.009619))
sketch12.setExpression("Constraints[0]", "Params.sketch12_diameter")
pocket10 = doc.addObject("PartDesign::Pocket", "Pocket009")
body.addObject(pocket10)
pocket10.Profile = sketch12
pocket10.setExpression("Length", "Params.pocket10_length")
pocket10.Reversed = True

# Sketch on XY plane
sketch13 = doc.addObject("Sketcher::SketchObject", "Sketch012")
body.addObject(sketch13)
sketch13.AttachmentSupport = (doc.XY_Plane, [""])
sketch13.MapMode = "FlatFace"
sketch13.AttachmentOffset = App.Placement(App.Vector(0, 0, 40), App.Rotation())
sketch13.addGeometry(Part.Circle(App.Vector(-37.5, -37, 0), App.Vector(0, 0, 1), 2.1), False)
sketch13.addConstraint(Sketcher.Constraint("Diameter", 0, 4.3))
sketch13.addConstraint(Sketcher.Constraint("DistanceX", 0, 3, -1, 1, 37.5))
sketch13.addConstraint(Sketcher.Constraint("DistanceY", 0, 3, -1, 1, 37.009619))
sketch13.setExpression("Constraints[0]", "Params.sketch13_diameter")
pocket11 = doc.addObject("PartDesign::Pocket", "Pocket010")
body.addObject(pocket11)
pocket11.Profile = sketch13
pocket11.setExpression("Length", "Params.pocket11_length")

# Sketch on XY plane
sketch14 = doc.addObject("Sketcher::SketchObject", "Sketch013")
body.addObject(sketch14)
sketch14.AttachmentSupport = (doc.XY_Plane, [""])
sketch14.MapMode = "FlatFace"
sketch14.addGeometry(Part.Circle(App.Vector(10.5, -50, 0), App.Vector(0, 0, 1), 3.1), False)
sketch14.addConstraint(Sketcher.Constraint("Diameter", 0, 6.2))
sketch14.addConstraint(Sketcher.Constraint("DistanceY", 0, 3, -1, 1, 50.0))
sketch14.addConstraint(Sketcher.Constraint("DistanceX", -1, 1, 0, 3, 10.526071))
sketch14.setExpression("Constraints[0]", "Params.sketch14_diameter")
pocket12 = doc.addObject("PartDesign::Pocket", "Pocket011")
body.addObject(pocket12)
pocket12.Profile = sketch14
pocket12.setExpression("Length", "Params.pocket12_length")
pocket12.Reversed = True

# Sketch on XY plane
sketch15 = doc.addObject("Sketcher::SketchObject", "Sketch014")
body.addObject(sketch15)
sketch15.AttachmentSupport = (doc.XY_Plane, [""])
sketch15.MapMode = "FlatFace"
sketch15.AttachmentOffset = App.Placement(App.Vector(0, 0, 40), App.Rotation())
sketch15.addGeometry(Part.Circle(App.Vector(11, -50, 0), App.Vector(0, 0, 1), 12), False)
sketch15.addConstraint(Sketcher.Constraint("Diameter", 0, 23.0))
sketch15.addConstraint(Sketcher.Constraint("DistanceY", 0, 3, -1, 1, 50.0))
sketch15.addConstraint(Sketcher.Constraint("DistanceX", -1, 1, 0, 3, 10.526071))
sketch15.setExpression("Constraints[0]", "Params.sketch15_diameter")
pocket13 = doc.addObject("PartDesign::Pocket", "Pocket012")
body.addObject(pocket13)
pocket13.Profile = sketch15
pocket13.setExpression("Length", "Params.pocket13_length")

# Sketch on XY plane
sketch16 = doc.addObject("Sketcher::SketchObject", "Sketch015")
body.addObject(sketch16)
sketch16.AttachmentSupport = (doc.XY_Plane, [""])
sketch16.MapMode = "FlatFace"
sketch16.AttachmentOffset = App.Placement(App.Vector(0, 0, 40), App.Rotation())
sketch16.addGeometry(Part.Circle(App.Vector(28.5, -43.4, 0), App.Vector(0, 0, 1), 2.1), False)
sketch16.addConstraint(Sketcher.Constraint("Diameter", 0, 4.15))
sketch16.addConstraint(Sketcher.Constraint("DistanceX", -1, 1, 0, 3, 28.544111))
sketch16.addConstraint(Sketcher.Constraint("DistanceY", 0, 3, -1, 1, 43.393535))
sketch16.setExpression("Constraints[0]", "Params.sketch16_diameter")
pocket14 = doc.addObject("PartDesign::Pocket", "Pocket013")
body.addObject(pocket14)
pocket14.Profile = sketch16
pocket14.setExpression("Length", "Params.pocket14_length")
body2 = doc.addObject("PartDesign::Body", "Body001")

# Sketch on XY plane
sketch17 = doc.addObject("Sketcher::SketchObject", "Sketch016")
body2.addObject(sketch17)
sketch17.AttachmentSupport = (doc.getObject("XY_Plane001"), [""])
sketch17.MapMode = "FlatFace"
sketch17.addGeometry(Part.ArcOfCircle(Part.Circle(App.Vector(0, 0, 0), App.Vector(0, 0, 1), 18.415), math.radians(90), math.radians(251)), False)
sketch17.addGeometry(Part.LineSegment(App.Vector(-6.008, -17.407, 0), App.Vector(-6.008, -30, 0)), False)
sketch17.addGeometry(Part.LineSegment(App.Vector(-6.008, -30, 0), App.Vector(-0.008, -30, 0)), False)
sketch17.addGeometry(Part.LineSegment(App.Vector(-0.008, -30, 0), App.Vector(-0.008, -18.415, 0)), False)
sketch17.addGeometry(Part.ArcOfCircle(Part.Circle(App.Vector(0, 0, 0), App.Vector(0, 0, 1), 18.415), math.radians(-90.03), math.radians(-90)), False)
sketch17.addGeometry(Part.LineSegment(App.Vector(0, -18.415, 0), App.Vector(0, 18.415, 0)), False)
sketch17.addConstraint(Sketcher.Constraint("Coincident", 0, 2, 1, 1))
sketch17.addConstraint(Sketcher.Constraint("Coincident", 1, 2, 2, 1))
sketch17.addConstraint(Sketcher.Constraint("Coincident", 2, 2, 3, 1))
sketch17.addConstraint(Sketcher.Constraint("Coincident", 3, 2, 4, 1))
sketch17.addConstraint(Sketcher.Constraint("Coincident", 4, 2, 5, 1))
sketch17.addConstraint(Sketcher.Constraint("Coincident", 5, 2, 0, 1))
sketch17.addConstraint(Sketcher.Constraint("Vertical", 1))
sketch17.addConstraint(Sketcher.Constraint("Horizontal", 2))
sketch17.addConstraint(Sketcher.Constraint("Vertical", 3))
sketch17.addConstraint(Sketcher.Constraint("Vertical", 5))
sketch17.addConstraint(Sketcher.Constraint("Coincident", 0, 3, -1, 1))
sketch17.addConstraint(Sketcher.Constraint("Coincident", 4, 3, -1, 1))
sketch17.addConstraint(Sketcher.Constraint("Equal", 0, 4))
sketch17.addConstraint(Sketcher.Constraint("PointOnObject", 4, 2, -2))
sketch17.addConstraint(Sketcher.Constraint("DistanceX", 2, 1, 2, 2, 6.0))
sketch17.addConstraint(Sketcher.Constraint("DistanceY", 1, 2, -1, 1, 30.0))
sketch17.addConstraint(Sketcher.Constraint("Radius", 0, 18.415))
sketch17.addConstraint(Sketcher.Constraint("DistanceY", 1, 2, 1, 1, 12.592752))
sketch17.setExpression("Constraints[14]", "Params.sketch17_width")
revolution = doc.addObject("PartDesign::Revolution", "Revolution")
body2.addObject(revolution)
revolution.Profile = sketch17
revolution.ReferenceAxis = (sketch17, ["V_Axis"])
revolution.setExpression("Angle", "Params.revolution_angle")
doc.recompute()

fillet2 = doc.addObject("PartDesign::Fillet", "Fillet001")
body2.addObject(fillet2)
fillet2.Base = (revolution, edges_at(revolution, [(0, -17.407, -6.008)]))
fillet2.setExpression("Radius", "Params.fillet2_radius")

# Sketch on XY plane
sketch18 = doc.addObject("Sketcher::SketchObject", "Sketch017")
body2.addObject(sketch18)
sketch18.AttachmentSupport = (doc.getObject("XY_Plane001"), [""])
sketch18.MapMode = "FlatFace"
add_polygon(sketch18, [(-7, -45), (-7, -55), (-16, -60), (-24, -55), (-24, -45), (-16, -40), (-6, -30), (6, -30)])  # lines 0-7
sketch18.addConstraint(Sketcher.Constraint("Vertical", 0))
sketch18.addConstraint(Sketcher.Constraint("Vertical", 3))
sketch18.addConstraint(Sketcher.Constraint("Horizontal", 6))
sketch18.addConstraint(Sketcher.Constraint("Parallel", 1, 4))
sketch18.addConstraint(Sketcher.Constraint("Horizontal", 0, 2, 2, 2))
sketch18.addConstraint(Sketcher.Constraint("Horizontal", 3, 2, 7, 2))
sketch18.addConstraint(Sketcher.Constraint("Vertical", 1, 2, 4, 2))
sketch18.addConstraint(Sketcher.Constraint("Equal", 1, 2))
sketch18.addConstraint(Sketcher.Constraint("Angle", 1, Q("-150 deg")))
sketch18.addConstraint(Sketcher.Constraint("DistanceY", 5, 2, -1, 1, 30.0))
sketch18.addConstraint(Sketcher.Constraint("DistanceX", 2, 2, 0, 2, 17.0))
sketch18.addConstraint(Sketcher.Constraint("DistanceX", 6, 1, 6, 2, 12.016646))
sketch18.addConstraint(Sketcher.Constraint("DistanceY", 0, 2, 0, 1, 9.814955))
sketch18.addConstraint(Sketcher.Constraint("DistanceX", 4, 2, 6, 2, 21.956181))
sketch18.addConstraint(Sketcher.Constraint("Distance", 5, 14.231286))
sketch18.addConstraint(Sketcher.Constraint("DistanceX", 0, 2, -1, 1, 7.447858))
pad3 = doc.addObject("PartDesign::Pad", "Pad002")
body2.addObject(pad3)
pad3.Profile = sketch18
pad3.Type = "TwoLengths"
pad3.setExpression("Length", "Params.pad3_length")
pad3.setExpression("Length2", "Params.pad3_length2")
pad3.Reversed = True

doc.recompute()
